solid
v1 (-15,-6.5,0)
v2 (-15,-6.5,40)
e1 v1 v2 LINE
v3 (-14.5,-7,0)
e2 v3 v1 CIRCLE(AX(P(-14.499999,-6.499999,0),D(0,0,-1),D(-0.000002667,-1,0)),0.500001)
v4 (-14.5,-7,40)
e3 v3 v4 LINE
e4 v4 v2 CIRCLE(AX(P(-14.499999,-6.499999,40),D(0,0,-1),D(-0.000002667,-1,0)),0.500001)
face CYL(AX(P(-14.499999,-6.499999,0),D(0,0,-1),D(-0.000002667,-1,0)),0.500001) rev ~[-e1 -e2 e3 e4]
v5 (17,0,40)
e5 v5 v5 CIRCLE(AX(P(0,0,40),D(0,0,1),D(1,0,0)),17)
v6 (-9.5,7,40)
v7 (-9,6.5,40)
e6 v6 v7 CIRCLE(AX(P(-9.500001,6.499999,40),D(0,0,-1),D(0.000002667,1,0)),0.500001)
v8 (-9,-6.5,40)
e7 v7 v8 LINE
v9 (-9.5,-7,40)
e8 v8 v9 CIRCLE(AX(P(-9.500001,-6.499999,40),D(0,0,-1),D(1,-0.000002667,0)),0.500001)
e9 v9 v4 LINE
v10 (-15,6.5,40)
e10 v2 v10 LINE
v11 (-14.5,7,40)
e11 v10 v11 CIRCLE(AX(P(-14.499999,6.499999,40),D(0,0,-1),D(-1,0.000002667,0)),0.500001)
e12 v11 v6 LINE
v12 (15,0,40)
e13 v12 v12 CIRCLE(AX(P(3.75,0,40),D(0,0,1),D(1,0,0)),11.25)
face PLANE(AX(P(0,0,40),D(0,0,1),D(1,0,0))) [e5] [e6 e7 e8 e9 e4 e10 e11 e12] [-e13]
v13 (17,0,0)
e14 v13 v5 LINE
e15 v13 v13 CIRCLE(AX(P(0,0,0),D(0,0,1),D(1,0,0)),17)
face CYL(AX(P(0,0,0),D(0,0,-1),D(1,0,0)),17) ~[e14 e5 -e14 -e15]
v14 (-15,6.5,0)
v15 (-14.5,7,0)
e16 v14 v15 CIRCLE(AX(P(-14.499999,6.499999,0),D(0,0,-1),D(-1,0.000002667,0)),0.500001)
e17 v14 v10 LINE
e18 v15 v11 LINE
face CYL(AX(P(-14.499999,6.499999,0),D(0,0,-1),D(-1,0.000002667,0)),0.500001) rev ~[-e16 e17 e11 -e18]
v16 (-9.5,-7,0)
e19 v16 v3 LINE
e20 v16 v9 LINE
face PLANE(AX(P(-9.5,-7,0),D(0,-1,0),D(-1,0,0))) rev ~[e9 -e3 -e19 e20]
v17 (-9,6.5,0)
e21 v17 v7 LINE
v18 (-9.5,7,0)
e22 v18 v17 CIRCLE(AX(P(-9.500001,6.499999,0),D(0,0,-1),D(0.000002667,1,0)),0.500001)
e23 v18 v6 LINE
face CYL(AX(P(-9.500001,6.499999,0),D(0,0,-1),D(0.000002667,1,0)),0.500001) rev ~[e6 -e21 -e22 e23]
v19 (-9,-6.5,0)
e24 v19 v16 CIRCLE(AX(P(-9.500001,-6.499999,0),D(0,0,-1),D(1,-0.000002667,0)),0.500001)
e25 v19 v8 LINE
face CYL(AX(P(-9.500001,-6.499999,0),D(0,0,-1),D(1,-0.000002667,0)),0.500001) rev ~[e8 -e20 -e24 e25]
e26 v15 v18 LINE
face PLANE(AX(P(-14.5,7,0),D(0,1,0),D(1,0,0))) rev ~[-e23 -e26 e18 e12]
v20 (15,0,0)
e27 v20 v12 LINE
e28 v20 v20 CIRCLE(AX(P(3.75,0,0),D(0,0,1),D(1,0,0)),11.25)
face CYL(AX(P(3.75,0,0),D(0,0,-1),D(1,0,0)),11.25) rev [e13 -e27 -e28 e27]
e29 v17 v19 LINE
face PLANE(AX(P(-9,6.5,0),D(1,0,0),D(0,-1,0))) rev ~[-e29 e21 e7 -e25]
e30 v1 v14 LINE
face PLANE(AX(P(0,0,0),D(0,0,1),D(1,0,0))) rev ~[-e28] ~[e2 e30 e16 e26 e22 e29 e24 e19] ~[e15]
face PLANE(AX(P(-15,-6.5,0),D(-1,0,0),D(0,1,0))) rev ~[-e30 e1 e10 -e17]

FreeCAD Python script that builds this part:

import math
import FreeCAD as App
import Part
import Sketcher

V = App.Vector
Q = App.Units.Quantity

doc = App.newDocument("Part")
body = doc.addObject("PartDesign::Body", "Body")

# Sketch on XY plane
sketch1 = body.newObject("Sketcher::SketchObject", "Sketch")
sketch1.AttachmentSupport = (doc.getObject("XY_Plane"), [""])
sketch1.MapMode = "FlatFace"
sketch1.addGeometry([
    Part.Circle(V(0, 0, 0), V(0, 0, 1), 17),  # 0
    Part.LineSegment(V(-9, 6.5, 0), V(-9, -6.5, 0)),  # 1
    Part.ArcOfCircle(Part.Circle(V(-9.500001, -6.499999, 0), V(0, 0, 1), 0.500001), math.radians(-89.999847), math.radians(-0.000153)),  # 2
    Part.LineSegment(V(-9.5, -7, 0), V(-14.5, -7, 0)),  # 3
    Part.ArcOfCircle(Part.Circle(V(-14.499999, -6.499999, 0), V(0, 0, 1), 0.500001), math.radians(-179.999847), math.radians(-90.000153)),  # 4
    Part.LineSegment(V(-15, -6.5, 0), V(-15, 6.5, 0)),  # 5
    Part.ArcOfCircle(Part.Circle(V(-14.499999, 6.499999, 0), V(0, 0, 1), 0.500001), math.radians(90.000153), math.radians(179.999847)),  # 6
    Part.LineSegment(V(-14.5, 7, 0), V(-9.5, 7, 0)),  # 7
    Part.ArcOfCircle(Part.Circle(V(-9.500001, 6.499999, 0), V(0, 0, 1), 0.500001), math.radians(0.000153), math.radians(89.999847)),  # 8
    Part.Circle(V(3.75, 0, 0), V(0, 0, 1), 11.25),  # 9
], False)
sketch1.addConstraint([
    Sketcher.Constraint("Coincident", 1, 2, 2, 2),
    Sketcher.Constraint("Coincident", 2, 1, 3, 1),
    Sketcher.Constraint("Coincident", 3, 2, 4, 2),
    Sketcher.Constraint("Coincident", 4, 1, 5, 1),
    Sketcher.Constraint("Coincident", 5, 2, 6, 2),
    Sketcher.Constraint("Coincident", 6, 1, 7, 1),
    Sketcher.Constraint("Coincident", 7, 2, 8, 2),
    Sketcher.Constraint("Coincident", 8, 1, 1, 1),
    Sketcher.Constraint("Vertical", 1),
    Sketcher.Constraint("Horizontal", 3),
    Sketcher.Constraint("Vertical", 5),
    Sketcher.Constraint("Horizontal", 7),
    Sketcher.Constraint("Coincident", 0, 3, -1, 1),
    Sketcher.Constraint("Equal", 2, 4),
    Sketcher.Constraint("Equal", 4, 6),
    Sketcher.Constraint("Equal", 6, 8),
    Sketcher.Constraint("Symmetric", 3, 2, 6, 1, -1),
    Sketcher.Constraint("PointOnObject", 9, 3, -1),
    Sketcher.Constraint("Horizontal", 4, 3, 1, 2),
    Sketcher.Constraint("Horizontal", 1, 2, 4, 1),
    Sketcher.Constraint("Horizontal", 8, 3, 5, 2),
    Sketcher.Constraint("Horizontal", 5, 2, 8, 1),
    Sketcher.Constraint("Vertical", 8, 3, 2, 1),
    Sketcher.Constraint("Vertical", 6, 3, 3, 2),
    Sketcher.Constraint("Vertical", 2, 1, 7, 2),
    Sketcher.Constraint("Diameter", 0, Q("34 mm")),
    Sketcher.Constraint("Diameter", 9, Q("22.5 mm")),
    Sketcher.Constraint("Radius", 2, Q("0.500001 mm")),
    Sketcher.Constraint("DistanceX", 3, 2, 3, 1, Q("5 mm")),
    Sketcher.Constraint("DistanceY", 1, 2, 1, 1, Q("13 mm")),
    Sketcher.Constraint("DistanceX", 1, 2, -1, 1, Q("9 mm")),
    Sketcher.Constraint("DistanceX", -1, 1, 9, 3, Q("3.75 mm")),
])
pad1 = body.newObject("PartDesign::Pad", "Pad")
pad1.Profile = sketch1
pad1.Length = 40

doc.recompute()
